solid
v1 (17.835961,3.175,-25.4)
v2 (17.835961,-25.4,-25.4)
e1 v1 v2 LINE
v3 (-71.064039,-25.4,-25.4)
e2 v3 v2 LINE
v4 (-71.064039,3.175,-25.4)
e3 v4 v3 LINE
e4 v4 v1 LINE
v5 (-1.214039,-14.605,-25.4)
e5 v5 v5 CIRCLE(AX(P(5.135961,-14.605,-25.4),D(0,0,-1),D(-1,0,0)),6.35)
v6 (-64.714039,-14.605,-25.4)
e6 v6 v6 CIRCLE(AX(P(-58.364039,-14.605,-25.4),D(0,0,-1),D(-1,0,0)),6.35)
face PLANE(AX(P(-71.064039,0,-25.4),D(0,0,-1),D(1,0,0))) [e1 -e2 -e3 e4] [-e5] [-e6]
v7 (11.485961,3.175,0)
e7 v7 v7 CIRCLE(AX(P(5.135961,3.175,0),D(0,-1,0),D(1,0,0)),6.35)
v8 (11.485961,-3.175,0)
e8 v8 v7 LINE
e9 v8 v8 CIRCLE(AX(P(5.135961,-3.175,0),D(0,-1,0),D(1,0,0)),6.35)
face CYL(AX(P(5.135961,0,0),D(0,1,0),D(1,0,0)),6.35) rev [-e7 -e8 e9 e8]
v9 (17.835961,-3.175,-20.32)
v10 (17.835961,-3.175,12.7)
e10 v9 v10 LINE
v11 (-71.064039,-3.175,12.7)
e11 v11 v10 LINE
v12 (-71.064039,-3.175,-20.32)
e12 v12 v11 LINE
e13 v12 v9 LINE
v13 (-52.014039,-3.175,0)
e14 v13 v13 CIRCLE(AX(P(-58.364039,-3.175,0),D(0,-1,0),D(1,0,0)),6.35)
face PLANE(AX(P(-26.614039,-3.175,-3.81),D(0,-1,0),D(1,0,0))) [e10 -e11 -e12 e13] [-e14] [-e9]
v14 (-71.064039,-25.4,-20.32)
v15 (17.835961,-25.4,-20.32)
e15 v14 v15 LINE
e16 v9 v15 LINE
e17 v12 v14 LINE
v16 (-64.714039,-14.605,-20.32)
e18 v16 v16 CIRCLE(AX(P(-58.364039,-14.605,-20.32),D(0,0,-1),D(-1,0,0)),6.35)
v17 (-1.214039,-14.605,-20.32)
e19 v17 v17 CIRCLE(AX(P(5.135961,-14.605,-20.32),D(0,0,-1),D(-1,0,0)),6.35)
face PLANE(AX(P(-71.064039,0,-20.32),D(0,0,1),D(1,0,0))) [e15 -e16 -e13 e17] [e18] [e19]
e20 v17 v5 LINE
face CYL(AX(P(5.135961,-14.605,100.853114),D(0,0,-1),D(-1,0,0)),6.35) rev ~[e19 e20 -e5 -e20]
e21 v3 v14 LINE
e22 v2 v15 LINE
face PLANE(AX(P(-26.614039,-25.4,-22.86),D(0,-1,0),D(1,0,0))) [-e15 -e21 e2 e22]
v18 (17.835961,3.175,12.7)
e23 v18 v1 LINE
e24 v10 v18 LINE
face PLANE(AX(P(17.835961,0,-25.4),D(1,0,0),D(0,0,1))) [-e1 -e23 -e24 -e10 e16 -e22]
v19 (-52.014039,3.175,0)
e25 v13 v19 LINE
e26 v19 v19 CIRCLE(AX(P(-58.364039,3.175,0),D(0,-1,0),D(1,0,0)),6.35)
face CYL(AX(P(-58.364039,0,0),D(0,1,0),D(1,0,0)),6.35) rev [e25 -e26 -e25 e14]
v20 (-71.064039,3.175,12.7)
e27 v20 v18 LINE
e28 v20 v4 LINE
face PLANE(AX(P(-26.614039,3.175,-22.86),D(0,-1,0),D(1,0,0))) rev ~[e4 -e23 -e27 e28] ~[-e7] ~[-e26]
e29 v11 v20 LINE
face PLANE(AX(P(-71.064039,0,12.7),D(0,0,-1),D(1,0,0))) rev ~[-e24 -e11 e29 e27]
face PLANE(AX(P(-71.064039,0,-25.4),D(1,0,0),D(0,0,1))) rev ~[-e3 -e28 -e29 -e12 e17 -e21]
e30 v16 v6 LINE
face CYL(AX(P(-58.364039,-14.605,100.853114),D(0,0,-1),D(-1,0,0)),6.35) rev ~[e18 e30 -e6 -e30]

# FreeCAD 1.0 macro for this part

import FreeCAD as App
import Part
import Sketcher

V = App.Vector
Q = App.Units.Quantity

doc = App.newDocument("Part")
body = doc.addObject("PartDesign::Body", "Body")

sketch1 = doc.addObject("Sketcher::SketchObject", "Sketch")
body.addObject(sketch1)
sketch1.AttachmentSupport = (doc.XZ_Plane, [""])
sketch1.MapMode = "FlatFace"
sketch1.addGeometry([
    Part.LineSegment(V(-71, 13, 0), V(-71, -20, 0)),
    Part.LineSegment(V(-71, -20, 0), V(18, -20, 0)),
    Part.LineSegment(V(18, -20, 0), V(18, 13, 0)),
    Part.LineSegment(V(18, 13, 0), V(-71, 13, 0)),
    Part.Circle(V(-58, 0, 0), V(0, 0, 1), 6),
    Part.Circle(V(5, 0, 0), V(0, 0, 1), 6),
], False)
sketch1.addConstraint([
    Sketcher.Constraint("Coincident", 0, 2, 1, 1),
    Sketcher.Constraint("Coincident", 1, 2, 2, 1),
    Sketcher.Constraint("Coincident", 2, 2, 3, 1),
    Sketcher.Constraint("Coincident", 3, 2, 0, 1),
    Sketcher.Constraint("Vertical", 0),
    Sketcher.Constraint("Horizontal", 1),
    Sketcher.Constraint("Vertical", 2),
    Sketcher.Constraint("Horizontal", 3),
    Sketcher.Constraint("Equal", 4, 5),
    Sketcher.Constraint("PointOnObject", 4, 3, -1),
    Sketcher.Constraint("PointOnObject", 5, 3, -1),
    Sketcher.Constraint("Diameter", 4, Q("0.5 in")),
    Sketcher.Constraint("DistanceX", 1, 1, 1, 2, Q("3.5 in")),
    Sketcher.Constraint("DistanceY", 0, 2, 0, 1, Q("1.3 in")),
    Sketcher.Constraint("DistanceX", 0, 2, 5, 3, Q("3 in")),
    Sketcher.Constraint("DistanceX", 4, 3, 1, 2, Q("3 in")),
    Sketcher.Constraint("DistanceY", 0, 2, -1, 1, Q("0.8 in")),
    Sketcher.Constraint("DistanceX", 4, 3, -1, 1, 58.364039),
])
pad1 = doc.addObject("PartDesign::Pad", "Pad")
body.addObject(pad1)
pad1.Profile = sketch1
pad1.Length = Q("0.25 in")
pad1.Midplane = True

sketch2 = doc.addObject("Sketcher::SketchObject", "Sketch001")
body.addObject(sketch2)
sketch2.AttachmentSupport = (doc.XZ_Plane, [""])
sketch2.MapMode = "FlatFace"
sketch2.addGeometry([
    Part.LineSegment(V(-71, -20, 0), V(-71, -25, 0)),
    Part.LineSegment(V(-71, -25, 0), V(18, -25, 0)),
    Part.LineSegment(V(18, -25, 0), V(18, -20, 0)),
    Part.LineSegment(V(18, -20, 0), V(-71, -20, 0)),
], False)
sketch2.addConstraint([
    Sketcher.Constraint("Coincident", 0, 2, 1, 1),
    Sketcher.Constraint("Coincident", 1, 2, 2, 1),
    Sketcher.Constraint("Coincident", 2, 2, 3, 1),
    Sketcher.Constraint("Coincident", 3, 2, 0, 1),
    Sketcher.Constraint("Vertical", 0),
    Sketcher.Constraint("Horizontal", 1),
    Sketcher.Constraint("Vertical", 2),
    Sketcher.Constraint("Horizontal", 3),
    Sketcher.Constraint("DistanceX", 1, 1, 1, 2, Q("3.5 in")),
    Sketcher.Constraint("DistanceY", 0, 2, 0, 1, Q("0.2 in")),
    Sketcher.Constraint("DistanceY", 0, 2, -1, 1, Q("1 in")),
    Sketcher.Constraint("DistanceX", 0, 2, -1, 1, 71.064039),
])
pad2 = doc.addObject("PartDesign::Pad", "Pad001")
body.addObject(pad2)
pad2.Profile = sketch2
pad2.Length = Q("1 in")

sketch3 = doc.addObject("Sketcher::SketchObject", "Sketch002")
body.addObject(sketch3)
sketch3.AttachmentSupport = (doc.XZ_Plane, [""])
sketch3.MapMode = "FlatFace"
sketch3.addGeometry([
    Part.LineSegment(V(-71, -20, 0), V(-71, -25, 0)),
    Part.LineSegment(V(-71, -25, 0), V(18, -25, 0)),
    Part.LineSegment(V(18, -25, 0), V(18, -20, 0)),
    Part.LineSegment(V(18, -20, 0), V(-71, -20, 0)),
], False)
sketch3.addConstraint([
    Sketcher.Constraint("Coincident", 0, 2, 1, 1),
    Sketcher.Constraint("Coincident", 1, 2, 2, 1),
    Sketcher.Constraint("Coincident", 2, 2, 3, 1),
    Sketcher.Constraint("Coincident", 3, 2, 0, 1),
    Sketcher.Constraint("Vertical", 0),
    Sketcher.Constraint("Horizontal", 1),
    Sketcher.Constraint("Vertical", 2),
    Sketcher.Constraint("Horizontal", 3),
    Sketcher.Constraint("DistanceX", 1, 1, 1, 2, Q("3.5 in")),
    Sketcher.Constraint("DistanceY", 0, 2, 0, 1, Q("0.2 in")),
    Sketcher.Constraint("DistanceY", 0, 2, -1, 1, Q("1 in")),
    Sketcher.Constraint("DistanceX", 0, 2, -1, 1, 71.064039),
])
pad3 = doc.addObject("PartDesign::Pad", "Pad002")
body.addObject(pad3)
pad3.Profile = sketch3
pad3.Length = Q("0.125 in")
pad3.Reversed = True

sketch4 = doc.addObject("Sketcher::SketchObject", "Sketch003")
body.addObject(sketch4)
sketch4.AttachmentSupport = (doc.XY_Plane, [""])
sketch4.MapMode = "FlatFace"
sketch4.addGeometry([
    Part.Circle(V(-58, -15, 0), V(0, 0, 1), 6),
    Part.Circle(V(5, -15, 0), V(0, 0, 1), 6),
], False)
sketch4.addConstraint([
    Sketcher.Constraint("Equal", 0, 1),
    Sketcher.Constraint("Horizontal", 0, 3, 1, 3),
    Sketcher.Constraint("Diameter", 0, Q("0.5 in")),
    Sketcher.Constraint("DistanceX", 0, 3, 1, 3, Q("2.5 in")),
    Sketcher.Constraint("DistanceY", 0, 3, -1, 1, Q("0.575 in")),
    Sketcher.Constraint("DistanceX", 0, 3, -1, 1, 58.364039),
])
doc.recompute()
hole = doc.addObject("PartDesign::Hole", "Hole")
body.addObject(hole)
hole.Profile = sketch4
hole.ThreadType = "None"
hole.Diameter = Q("0.5 in")
hole.DepthType = "ThroughAll"

doc.recompute()
